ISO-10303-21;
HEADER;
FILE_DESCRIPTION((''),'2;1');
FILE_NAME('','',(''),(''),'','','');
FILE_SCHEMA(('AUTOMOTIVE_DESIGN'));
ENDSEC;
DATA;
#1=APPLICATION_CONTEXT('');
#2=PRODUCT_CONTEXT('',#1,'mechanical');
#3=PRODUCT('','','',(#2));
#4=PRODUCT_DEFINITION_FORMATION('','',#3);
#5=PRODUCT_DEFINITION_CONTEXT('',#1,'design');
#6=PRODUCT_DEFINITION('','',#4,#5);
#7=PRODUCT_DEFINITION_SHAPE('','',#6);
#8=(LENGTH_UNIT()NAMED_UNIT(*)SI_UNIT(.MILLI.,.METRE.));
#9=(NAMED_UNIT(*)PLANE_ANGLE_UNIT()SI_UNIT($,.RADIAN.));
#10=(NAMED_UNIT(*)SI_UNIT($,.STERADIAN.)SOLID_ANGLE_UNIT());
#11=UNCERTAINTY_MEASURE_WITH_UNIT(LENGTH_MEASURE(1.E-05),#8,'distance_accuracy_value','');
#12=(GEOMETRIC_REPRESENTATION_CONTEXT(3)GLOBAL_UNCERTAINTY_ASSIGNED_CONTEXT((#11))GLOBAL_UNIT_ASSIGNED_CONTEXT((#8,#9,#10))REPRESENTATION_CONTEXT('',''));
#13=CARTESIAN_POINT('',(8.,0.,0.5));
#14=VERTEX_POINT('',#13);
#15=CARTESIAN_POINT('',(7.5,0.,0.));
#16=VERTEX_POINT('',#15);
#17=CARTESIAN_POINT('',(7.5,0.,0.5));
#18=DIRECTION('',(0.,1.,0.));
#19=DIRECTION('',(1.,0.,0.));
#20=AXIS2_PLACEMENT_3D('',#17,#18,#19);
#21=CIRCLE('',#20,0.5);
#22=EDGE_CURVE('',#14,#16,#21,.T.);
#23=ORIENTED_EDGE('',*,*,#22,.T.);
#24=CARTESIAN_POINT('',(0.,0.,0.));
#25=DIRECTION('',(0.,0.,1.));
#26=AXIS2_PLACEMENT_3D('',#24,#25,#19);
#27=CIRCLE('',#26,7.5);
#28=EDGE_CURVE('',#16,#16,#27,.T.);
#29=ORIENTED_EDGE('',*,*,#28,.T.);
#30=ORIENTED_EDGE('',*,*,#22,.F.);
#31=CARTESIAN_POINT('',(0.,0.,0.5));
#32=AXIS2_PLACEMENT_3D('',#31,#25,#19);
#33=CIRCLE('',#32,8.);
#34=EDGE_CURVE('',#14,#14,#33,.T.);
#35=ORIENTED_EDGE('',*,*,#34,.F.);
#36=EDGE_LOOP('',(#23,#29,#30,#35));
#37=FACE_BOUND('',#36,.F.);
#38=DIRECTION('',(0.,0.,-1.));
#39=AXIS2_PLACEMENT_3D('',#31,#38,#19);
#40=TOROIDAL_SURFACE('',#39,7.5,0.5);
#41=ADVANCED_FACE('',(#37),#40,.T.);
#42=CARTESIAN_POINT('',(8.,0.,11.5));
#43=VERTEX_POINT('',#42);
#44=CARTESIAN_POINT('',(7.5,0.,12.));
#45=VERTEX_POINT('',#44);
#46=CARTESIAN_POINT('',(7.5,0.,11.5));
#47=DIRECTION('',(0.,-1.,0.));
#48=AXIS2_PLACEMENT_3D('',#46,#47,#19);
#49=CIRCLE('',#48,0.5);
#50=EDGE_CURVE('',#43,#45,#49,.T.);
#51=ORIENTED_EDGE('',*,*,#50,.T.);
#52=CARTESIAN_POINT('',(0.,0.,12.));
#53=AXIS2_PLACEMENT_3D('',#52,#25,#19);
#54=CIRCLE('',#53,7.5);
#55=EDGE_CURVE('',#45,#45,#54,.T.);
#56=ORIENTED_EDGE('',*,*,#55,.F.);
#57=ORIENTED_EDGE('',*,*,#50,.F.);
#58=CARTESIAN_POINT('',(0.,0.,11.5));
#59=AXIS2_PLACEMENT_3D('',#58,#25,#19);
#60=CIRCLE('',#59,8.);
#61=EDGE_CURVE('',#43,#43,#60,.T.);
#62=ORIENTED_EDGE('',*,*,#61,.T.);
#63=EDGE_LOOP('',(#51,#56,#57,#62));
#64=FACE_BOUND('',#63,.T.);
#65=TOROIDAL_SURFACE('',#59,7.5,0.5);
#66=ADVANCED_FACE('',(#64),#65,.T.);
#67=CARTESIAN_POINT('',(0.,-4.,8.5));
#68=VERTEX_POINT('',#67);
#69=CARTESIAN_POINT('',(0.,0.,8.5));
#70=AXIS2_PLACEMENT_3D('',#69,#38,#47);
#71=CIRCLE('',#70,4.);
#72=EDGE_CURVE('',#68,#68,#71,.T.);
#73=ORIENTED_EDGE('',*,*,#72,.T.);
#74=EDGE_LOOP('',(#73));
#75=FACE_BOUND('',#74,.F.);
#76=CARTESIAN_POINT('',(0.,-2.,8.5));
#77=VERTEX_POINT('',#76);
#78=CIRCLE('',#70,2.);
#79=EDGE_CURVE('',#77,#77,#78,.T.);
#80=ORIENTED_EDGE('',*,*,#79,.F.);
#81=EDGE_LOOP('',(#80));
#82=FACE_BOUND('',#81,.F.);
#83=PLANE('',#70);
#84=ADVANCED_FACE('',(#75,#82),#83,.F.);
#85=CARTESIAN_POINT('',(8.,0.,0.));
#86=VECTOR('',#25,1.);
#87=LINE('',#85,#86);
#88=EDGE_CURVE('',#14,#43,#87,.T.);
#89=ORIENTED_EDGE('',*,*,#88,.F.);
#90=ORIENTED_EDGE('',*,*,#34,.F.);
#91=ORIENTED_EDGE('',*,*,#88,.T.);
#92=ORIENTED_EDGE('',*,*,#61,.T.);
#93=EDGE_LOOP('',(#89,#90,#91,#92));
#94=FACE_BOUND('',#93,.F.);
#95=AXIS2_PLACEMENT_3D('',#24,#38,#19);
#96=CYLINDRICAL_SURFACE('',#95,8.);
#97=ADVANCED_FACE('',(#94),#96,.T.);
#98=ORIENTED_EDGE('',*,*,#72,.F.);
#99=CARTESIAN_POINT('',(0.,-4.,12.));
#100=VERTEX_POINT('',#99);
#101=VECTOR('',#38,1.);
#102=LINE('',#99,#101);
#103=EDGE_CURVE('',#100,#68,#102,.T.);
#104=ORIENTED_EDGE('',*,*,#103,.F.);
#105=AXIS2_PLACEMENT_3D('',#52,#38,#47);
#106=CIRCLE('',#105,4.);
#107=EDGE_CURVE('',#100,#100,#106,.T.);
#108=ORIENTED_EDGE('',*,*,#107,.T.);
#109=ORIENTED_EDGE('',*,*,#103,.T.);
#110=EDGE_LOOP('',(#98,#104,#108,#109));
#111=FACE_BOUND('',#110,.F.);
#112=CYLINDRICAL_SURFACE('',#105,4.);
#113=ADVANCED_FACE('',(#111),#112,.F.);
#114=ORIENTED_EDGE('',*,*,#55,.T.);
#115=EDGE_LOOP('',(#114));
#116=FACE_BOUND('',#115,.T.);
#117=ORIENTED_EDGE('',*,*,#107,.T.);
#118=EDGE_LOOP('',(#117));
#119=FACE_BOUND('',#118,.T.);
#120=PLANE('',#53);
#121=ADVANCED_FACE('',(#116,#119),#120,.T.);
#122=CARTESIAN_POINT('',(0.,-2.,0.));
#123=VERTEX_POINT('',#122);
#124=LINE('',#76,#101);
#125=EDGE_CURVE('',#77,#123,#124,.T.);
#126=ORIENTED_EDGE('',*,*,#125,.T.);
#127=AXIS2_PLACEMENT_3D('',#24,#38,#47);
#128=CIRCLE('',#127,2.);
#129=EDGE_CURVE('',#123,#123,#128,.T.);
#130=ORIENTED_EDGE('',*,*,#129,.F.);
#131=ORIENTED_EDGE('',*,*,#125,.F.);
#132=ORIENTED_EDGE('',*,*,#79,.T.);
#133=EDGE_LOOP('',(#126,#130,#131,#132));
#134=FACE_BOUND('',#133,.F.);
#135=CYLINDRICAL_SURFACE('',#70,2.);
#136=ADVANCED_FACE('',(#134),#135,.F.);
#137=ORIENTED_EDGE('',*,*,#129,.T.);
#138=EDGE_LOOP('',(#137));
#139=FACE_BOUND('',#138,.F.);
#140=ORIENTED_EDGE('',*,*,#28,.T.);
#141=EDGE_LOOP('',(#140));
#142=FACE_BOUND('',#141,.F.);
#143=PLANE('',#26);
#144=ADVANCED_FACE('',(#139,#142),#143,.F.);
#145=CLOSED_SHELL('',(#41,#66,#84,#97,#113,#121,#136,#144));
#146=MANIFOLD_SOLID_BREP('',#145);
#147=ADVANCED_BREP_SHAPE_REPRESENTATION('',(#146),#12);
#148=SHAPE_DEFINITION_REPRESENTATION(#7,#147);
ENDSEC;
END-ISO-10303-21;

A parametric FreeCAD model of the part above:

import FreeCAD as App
import Part
import Sketcher

V = App.Vector


def edges_at(feature, points):
    """Names of the edges that pass closest to the given points."""
    edges = feature.Shape.Edges
    near = lambda p: min(range(len(edges)), key=lambda i: edges[i].distToShape(Part.Vertex(*p))[0])
    return sorted({f"Edge{near(p) + 1}" for p in points})

doc = App.newDocument("Part")
params = doc.addObject("Spreadsheet::Sheet", "Params")
for row, (alias, value) in enumerate([
    ("sketch1_diameter", "16 mm"),
    ("pad1_length", "12 mm"),
    ("sketch2_diameter", "4 mm"),
    ("hole_diameter", "4 mm"),
    ("hole_cbore_diameter", "8 mm"),
    ("hole_cbore_depth", "3.5 mm"),
    ("fillet_radius", "0.5 mm"),
], start=1):
    params.set(f"A{row}", alias)
    params.set(f"B{row}", "=" + value)
    params.setAlias(f"B{row}", alias)

body = doc.addObject("PartDesign::Body", "Body")

# Sketch on XY plane
sketch1 = body.newObject("Sketcher::SketchObject", "Sketch")
sketch1.AttachmentSupport = (doc.getObject("XY_Plane"), [""])
sketch1.MapMode = "FlatFace"
sketch1.addGeometry(Part.Circle(V(0, 0, 0), V(0, 0, 1), 8), False)
sketch1.addConstraint([
    Sketcher.Constraint("Coincident", 0, 3, -1, 1),
    Sketcher.Constraint("Diameter", 0, 16.0),
])
sketch1.setExpression("Constraints[1]", "Params.sketch1_diameter")
pad1 = body.newObject("PartDesign::Pad", "Pad")
pad1.Profile = sketch1
pad1.setExpression("Length", "Params.pad1_length")

# Sketch on XY plane
sketch2 = body.newObject("Sketcher::SketchObject", "Sketch001")
sketch2.AttachmentSupport = (doc.getObject("XY_Plane"), [""])
sketch2.MapMode = "FlatFace"
sketch2.AttachmentOffset = App.Placement(V(0, 0, 12), App.Rotation())
sketch2.addGeometry(Part.Circle(V(0, 0, 0), V(0, 0, 1), 2), False)
sketch2.addConstraint([
    Sketcher.Constraint("Coincident", 0, 3, -1, 1),
    Sketcher.Constraint("Diameter", 0, 4.0),
])
sketch2.setExpression("Constraints[1]", "Params.sketch2_diameter")
doc.recompute()
hole = body.newObject("PartDesign::Hole", "Hole")
hole.Profile = sketch2
hole.ThreadType = "None"
hole.setExpression("Diameter", "Params.hole_diameter")
hole.DepthType = "ThroughAll"
hole.HoleCutType = "Counterbore"
hole.setExpression("HoleCutDiameter", "Params.hole_cbore_diameter")
hole.setExpression("HoleCutDepth", "Params.hole_cbore_depth")
doc.recompute()

fillet = body.newObject("PartDesign::Fillet", "Fillet")
fillet.Base = (hole, edges_at(hole, [(-8, 0, 12), (-8, 0, 0)]))
fillet.setExpression("Radius", "Params.fillet_radius")

doc.recompute()
